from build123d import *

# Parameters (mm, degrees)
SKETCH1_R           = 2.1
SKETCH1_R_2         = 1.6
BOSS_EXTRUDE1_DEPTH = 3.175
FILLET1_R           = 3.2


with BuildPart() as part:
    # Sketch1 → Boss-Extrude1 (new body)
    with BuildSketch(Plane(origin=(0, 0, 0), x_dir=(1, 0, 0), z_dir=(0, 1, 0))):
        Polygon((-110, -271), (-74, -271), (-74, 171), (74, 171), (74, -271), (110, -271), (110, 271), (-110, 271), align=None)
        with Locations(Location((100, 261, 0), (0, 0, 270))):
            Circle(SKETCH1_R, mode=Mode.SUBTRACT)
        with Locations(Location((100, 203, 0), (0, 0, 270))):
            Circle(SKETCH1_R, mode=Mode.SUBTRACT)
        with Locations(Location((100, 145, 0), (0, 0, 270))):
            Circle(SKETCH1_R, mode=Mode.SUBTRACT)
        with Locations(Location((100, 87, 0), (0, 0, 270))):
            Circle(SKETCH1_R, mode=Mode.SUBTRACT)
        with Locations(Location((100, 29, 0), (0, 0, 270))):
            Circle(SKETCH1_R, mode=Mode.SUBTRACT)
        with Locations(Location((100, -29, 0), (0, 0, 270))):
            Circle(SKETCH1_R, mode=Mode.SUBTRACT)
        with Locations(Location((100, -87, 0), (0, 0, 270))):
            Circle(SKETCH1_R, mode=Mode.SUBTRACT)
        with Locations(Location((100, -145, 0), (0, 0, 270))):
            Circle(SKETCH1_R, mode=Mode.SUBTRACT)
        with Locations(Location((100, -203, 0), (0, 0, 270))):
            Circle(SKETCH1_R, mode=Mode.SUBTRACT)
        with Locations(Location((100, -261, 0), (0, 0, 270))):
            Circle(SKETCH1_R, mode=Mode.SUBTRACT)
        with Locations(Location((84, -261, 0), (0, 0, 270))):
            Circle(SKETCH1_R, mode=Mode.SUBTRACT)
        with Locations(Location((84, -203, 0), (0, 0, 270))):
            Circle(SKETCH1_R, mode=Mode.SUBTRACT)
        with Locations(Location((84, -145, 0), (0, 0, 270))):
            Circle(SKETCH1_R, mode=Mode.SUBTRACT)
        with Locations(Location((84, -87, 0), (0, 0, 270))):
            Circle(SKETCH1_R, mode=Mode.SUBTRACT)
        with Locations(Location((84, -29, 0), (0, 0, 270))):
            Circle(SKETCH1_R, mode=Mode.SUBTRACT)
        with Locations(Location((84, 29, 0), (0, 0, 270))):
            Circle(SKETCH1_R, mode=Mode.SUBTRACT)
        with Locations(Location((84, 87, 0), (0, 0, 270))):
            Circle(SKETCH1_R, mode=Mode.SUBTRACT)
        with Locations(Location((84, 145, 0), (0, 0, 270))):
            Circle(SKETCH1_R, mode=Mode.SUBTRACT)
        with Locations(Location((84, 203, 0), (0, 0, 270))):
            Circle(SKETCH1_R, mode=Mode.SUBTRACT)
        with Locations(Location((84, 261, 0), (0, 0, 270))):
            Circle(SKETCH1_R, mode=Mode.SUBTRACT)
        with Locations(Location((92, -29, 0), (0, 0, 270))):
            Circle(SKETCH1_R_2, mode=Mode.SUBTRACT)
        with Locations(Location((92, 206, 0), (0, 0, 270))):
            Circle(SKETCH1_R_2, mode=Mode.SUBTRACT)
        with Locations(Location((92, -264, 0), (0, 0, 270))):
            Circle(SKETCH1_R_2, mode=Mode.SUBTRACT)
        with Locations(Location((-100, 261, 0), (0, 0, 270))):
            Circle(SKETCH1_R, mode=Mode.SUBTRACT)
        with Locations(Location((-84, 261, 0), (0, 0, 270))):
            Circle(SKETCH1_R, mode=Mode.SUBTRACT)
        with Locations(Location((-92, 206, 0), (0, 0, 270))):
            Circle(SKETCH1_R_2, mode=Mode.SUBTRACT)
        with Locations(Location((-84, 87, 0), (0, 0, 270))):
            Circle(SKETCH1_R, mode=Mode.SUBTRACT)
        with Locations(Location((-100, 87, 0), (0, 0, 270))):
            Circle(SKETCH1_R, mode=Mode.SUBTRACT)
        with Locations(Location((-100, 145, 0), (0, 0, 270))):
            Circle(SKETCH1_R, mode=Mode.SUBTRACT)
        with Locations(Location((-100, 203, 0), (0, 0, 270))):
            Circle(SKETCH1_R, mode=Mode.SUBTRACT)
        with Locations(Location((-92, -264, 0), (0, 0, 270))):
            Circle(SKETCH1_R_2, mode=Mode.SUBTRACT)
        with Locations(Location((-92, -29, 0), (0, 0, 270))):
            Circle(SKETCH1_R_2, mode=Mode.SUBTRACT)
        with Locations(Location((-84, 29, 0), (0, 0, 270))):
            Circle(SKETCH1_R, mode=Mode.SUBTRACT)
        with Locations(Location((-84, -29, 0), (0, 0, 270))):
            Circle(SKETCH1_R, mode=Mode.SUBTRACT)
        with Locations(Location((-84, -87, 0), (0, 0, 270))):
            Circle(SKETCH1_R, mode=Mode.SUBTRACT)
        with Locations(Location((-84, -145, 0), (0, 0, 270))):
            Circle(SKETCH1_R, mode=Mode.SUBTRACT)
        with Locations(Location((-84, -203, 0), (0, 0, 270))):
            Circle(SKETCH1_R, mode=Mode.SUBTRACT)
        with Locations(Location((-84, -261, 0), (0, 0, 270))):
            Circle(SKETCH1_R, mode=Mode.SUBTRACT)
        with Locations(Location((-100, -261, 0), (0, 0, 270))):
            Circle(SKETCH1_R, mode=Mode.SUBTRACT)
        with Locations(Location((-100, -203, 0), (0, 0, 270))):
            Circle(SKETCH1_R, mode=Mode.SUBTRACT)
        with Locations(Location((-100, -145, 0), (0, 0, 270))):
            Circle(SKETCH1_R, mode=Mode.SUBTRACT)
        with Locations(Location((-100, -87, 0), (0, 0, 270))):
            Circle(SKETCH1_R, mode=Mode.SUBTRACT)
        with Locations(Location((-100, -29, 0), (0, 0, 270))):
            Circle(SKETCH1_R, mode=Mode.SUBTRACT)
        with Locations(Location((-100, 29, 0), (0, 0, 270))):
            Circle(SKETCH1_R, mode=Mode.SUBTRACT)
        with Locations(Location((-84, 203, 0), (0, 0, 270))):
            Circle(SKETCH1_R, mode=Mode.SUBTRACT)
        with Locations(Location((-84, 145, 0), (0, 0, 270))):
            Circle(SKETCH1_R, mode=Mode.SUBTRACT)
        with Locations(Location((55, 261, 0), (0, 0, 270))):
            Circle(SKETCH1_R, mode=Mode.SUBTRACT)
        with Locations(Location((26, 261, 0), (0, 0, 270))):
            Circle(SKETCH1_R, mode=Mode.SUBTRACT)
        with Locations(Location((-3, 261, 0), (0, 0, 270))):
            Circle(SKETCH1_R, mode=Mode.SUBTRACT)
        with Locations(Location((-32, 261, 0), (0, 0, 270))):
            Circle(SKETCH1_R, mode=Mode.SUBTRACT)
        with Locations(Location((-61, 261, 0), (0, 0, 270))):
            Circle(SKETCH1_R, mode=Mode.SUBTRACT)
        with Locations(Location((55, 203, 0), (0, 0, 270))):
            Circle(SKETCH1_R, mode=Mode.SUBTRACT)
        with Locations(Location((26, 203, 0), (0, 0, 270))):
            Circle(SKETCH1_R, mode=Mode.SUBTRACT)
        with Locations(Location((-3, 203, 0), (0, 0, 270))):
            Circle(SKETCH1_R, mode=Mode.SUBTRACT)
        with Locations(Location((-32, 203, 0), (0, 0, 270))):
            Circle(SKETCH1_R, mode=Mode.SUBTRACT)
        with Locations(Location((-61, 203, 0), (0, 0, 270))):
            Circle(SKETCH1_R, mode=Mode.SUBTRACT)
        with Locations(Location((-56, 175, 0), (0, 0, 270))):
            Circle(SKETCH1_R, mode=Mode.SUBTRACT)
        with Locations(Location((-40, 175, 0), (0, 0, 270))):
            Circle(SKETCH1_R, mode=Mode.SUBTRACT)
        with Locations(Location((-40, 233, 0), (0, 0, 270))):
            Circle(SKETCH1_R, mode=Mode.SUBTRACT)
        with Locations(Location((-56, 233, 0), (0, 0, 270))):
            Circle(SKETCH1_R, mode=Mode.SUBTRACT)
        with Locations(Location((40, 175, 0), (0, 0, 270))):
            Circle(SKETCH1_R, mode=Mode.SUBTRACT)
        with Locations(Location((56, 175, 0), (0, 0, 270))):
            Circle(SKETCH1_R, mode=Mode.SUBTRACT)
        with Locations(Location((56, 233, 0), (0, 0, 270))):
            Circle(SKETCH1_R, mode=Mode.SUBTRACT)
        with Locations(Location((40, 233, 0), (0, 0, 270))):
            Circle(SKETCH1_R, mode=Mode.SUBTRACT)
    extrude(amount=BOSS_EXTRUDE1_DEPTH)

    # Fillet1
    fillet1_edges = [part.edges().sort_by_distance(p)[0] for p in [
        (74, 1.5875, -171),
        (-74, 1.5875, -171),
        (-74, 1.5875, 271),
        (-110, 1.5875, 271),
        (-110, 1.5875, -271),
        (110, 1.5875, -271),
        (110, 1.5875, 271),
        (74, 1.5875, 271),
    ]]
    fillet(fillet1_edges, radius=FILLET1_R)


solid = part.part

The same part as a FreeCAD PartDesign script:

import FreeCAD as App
import Part
import Sketcher
Q = App.Units.Quantity


def edges_at(feature, points):
    """Names of the edges that pass closest to the given points."""
    edges = feature.Shape.Edges
    near = lambda p: min(range(len(edges)), key=lambda i: edges[i].distToShape(Part.Vertex(*p))[0])
    return sorted({f"Edge{near(p) + 1}" for p in points})


def add_polygon(sketch, points):
    """Adds a closed chain of lines whose ends are joined by coincident constraints."""
    first, n = sketch.GeometryCount, len(points)
    for a, b in zip(points, points[1:] + points[:1]):
        sketch.addGeometry(Part.LineSegment(App.Vector(*a, 0), App.Vector(*b, 0)), False)
    for i in range(n):
        sketch.addConstraint(Sketcher.Constraint("Coincident", first + i, 2, first + (i + 1) % n, 1))

doc = App.newDocument("Part")
body = doc.addObject("PartDesign::Body", "Body")

# Sketch on XZ plane
sketch1 = body.newObject("Sketcher::SketchObject", "Sketch")
sketch1.AttachmentSupport = (doc.getObject("XZ_Plane"), [""])
sketch1.MapMode = "FlatFace"
add_polygon(sketch1, [(-110, 271), (-74, 271), (-74, -171), (74, -171), (74, 271), (110, 271), (110, -271), (-110, -271)])  # lines 0-7
sketch1.addGeometry(Part.Circle(App.Vector(-100, 261, 0), App.Vector(0, 0, 1), 2.1), False)  # 8
sketch1.addGeometry(Part.Circle(App.Vector(-92, 264, 0), App.Vector(0, 0, 1), 1.6), False)  # 9
sketch1.addGeometry(Part.Circle(App.Vector(-84, 261, 0), App.Vector(0, 0, 1), 2.1), False)  # 10
sketch1.addGeometry(Part.Circle(App.Vector(-100, 203, 0), App.Vector(0, 0, 1), 2.1), False)  # 11
sketch1.addGeometry(Part.Circle(App.Vector(-84, 203, 0), App.Vector(0, 0, 1), 2.1), False)  # 12
sketch1.addGeometry(Part.Circle(App.Vector(-100, 145, 0), App.Vector(0, 0, 1), 2.1), False)  # 13
sketch1.addGeometry(Part.Circle(App.Vector(-84, 145, 0), App.Vector(0, 0, 1), 2.1), False)  # 14
sketch1.addGeometry(Part.Circle(App.Vector(-100, 87, 0), App.Vector(0, 0, 1), 2.1), False)  # 15
sketch1.addGeometry(Part.Circle(App.Vector(-84, 87, 0), App.Vector(0, 0, 1), 2.1), False)  # 16
sketch1.addGeometry(Part.Circle(App.Vector(-100, 29, 0), App.Vector(0, 0, 1), 2.1), False)  # 17
sketch1.addGeometry(Part.Circle(App.Vector(-92, 29, 0), App.Vector(0, 0, 1), 1.6), False)  # 18
sketch1.addGeometry(Part.Circle(App.Vector(-84, 29, 0), App.Vector(0, 0, 1), 2.1), False)  # 19
sketch1.addGeometry(Part.Circle(App.Vector(84, 261, 0), App.Vector(0, 0, 1), 2.1), False)  # 20
sketch1.addGeometry(Part.Circle(App.Vector(92, 264, 0), App.Vector(0, 0, 1), 1.6), False)  # 21
sketch1.addGeometry(Part.Circle(App.Vector(100, 261, 0), App.Vector(0, 0, 1), 2.1), False)  # 22
sketch1.addGeometry(Part.Circle(App.Vector(84, 203, 0), App.Vector(0, 0, 1), 2.1), False)  # 23
sketch1.addGeometry(Part.Circle(App.Vector(100, 203, 0), App.Vector(0, 0, 1), 2.1), False)  # 24
sketch1.addGeometry(Part.Circle(App.Vector(84, 145, 0), App.Vector(0, 0, 1), 2.1), False)  # 25
sketch1.addGeometry(Part.Circle(App.Vector(100, 145, 0), App.Vector(0, 0, 1), 2.1), False)  # 26
sketch1.addGeometry(Part.Circle(App.Vector(84, 87, 0), App.Vector(0, 0, 1), 2.1), False)  # 27
sketch1.addGeometry(Part.Circle(App.Vector(100, 87, 0), App.Vector(0, 0, 1), 2.1), False)  # 28
sketch1.addGeometry(Part.Circle(App.Vector(84, 29, 0), App.Vector(0, 0, 1), 2.1), False)  # 29
sketch1.addGeometry(Part.Circle(App.Vector(92, 29, 0), App.Vector(0, 0, 1), 1.6), False)  # 30
sketch1.addGeometry(Part.Circle(App.Vector(100, 29, 0), App.Vector(0, 0, 1), 2.1), False)  # 31
sketch1.addGeometry(Part.Circle(App.Vector(-100, -29, 0), App.Vector(0, 0, 1), 2.1), False)  # 32
sketch1.addGeometry(Part.Circle(App.Vector(-84, -29, 0), App.Vector(0, 0, 1), 2.1), False)  # 33
sketch1.addGeometry(Part.Circle(App.Vector(-100, -87, 0), App.Vector(0, 0, 1), 2.1), False)  # 34
sketch1.addGeometry(Part.Circle(App.Vector(-84, -87, 0), App.Vector(0, 0, 1), 2.1), False)  # 35
sketch1.addGeometry(Part.Circle(App.Vector(-100, -145, 0), App.Vector(0, 0, 1), 2.1), False)  # 36
sketch1.addGeometry(Part.Circle(App.Vector(-84, -145, 0), App.Vector(0, 0, 1), 2.1), False)  # 37
sketch1.addGeometry(Part.Circle(App.Vector(-56, -175, 0), App.Vector(0, 0, 1), 2.1), False)  # 38
sketch1.addGeometry(Part.Circle(App.Vector(-100, -203, 0), App.Vector(0, 0, 1), 2.1), False)  # 39
sketch1.addGeometry(Part.Circle(App.Vector(-92, -206, 0), App.Vector(0, 0, 1), 1.6), False)  # 40
sketch1.addGeometry(Part.Circle(App.Vector(-84, -203, 0), App.Vector(0, 0, 1), 2.1), False)  # 41
sketch1.addGeometry(Part.Circle(App.Vector(-100, -261, 0), App.Vector(0, 0, 1), 2.1), False)  # 42
sketch1.addGeometry(Part.Circle(App.Vector(-84, -261, 0), App.Vector(0, 0, 1), 2.1), False)  # 43
sketch1.addGeometry(Part.Circle(App.Vector(-61, -203, 0), App.Vector(0, 0, 1), 2.1), False)  # 44
sketch1.addGeometry(Part.Circle(App.Vector(-56, -233, 0), App.Vector(0, 0, 1), 2.1), False)  # 45
sketch1.addGeometry(Part.Circle(App.Vector(-61, -261, 0), App.Vector(0, 0, 1), 2.1), False)  # 46
sketch1.addGeometry(Part.Circle(App.Vector(-40, -175, 0), App.Vector(0, 0, 1), 2.1), False)  # 47
sketch1.addGeometry(Part.Circle(App.Vector(-32, -203, 0), App.Vector(0, 0, 1), 2.1), False)  # 48
sketch1.addGeometry(Part.Circle(App.Vector(-40, -233, 0), App.Vector(0, 0, 1), 2.1), False)  # 49
sketch1.addGeometry(Part.Circle(App.Vector(-32, -261, 0), App.Vector(0, 0, 1), 2.1), False)  # 50
sketch1.addGeometry(Part.Circle(App.Vector(-3, -203, 0), App.Vector(0, 0, 1), 2.1), False)  # 51
sketch1.addGeometry(Part.Circle(App.Vector(-3, -261, 0), App.Vector(0, 0, 1), 2.1), False)  # 52
sketch1.addGeometry(Part.Circle(App.Vector(84, -29, 0), App.Vector(0, 0, 1), 2.1), False)  # 53
sketch1.addGeometry(Part.Circle(App.Vector(100, -29, 0), App.Vector(0, 0, 1), 2.1), False)  # 54
sketch1.addGeometry(Part.Circle(App.Vector(84, -87, 0), App.Vector(0, 0, 1), 2.1), False)  # 55
sketch1.addGeometry(Part.Circle(App.Vector(100, -87, 0), App.Vector(0, 0, 1), 2.1), False)  # 56
sketch1.addGeometry(Part.Circle(App.Vector(40, -175, 0), App.Vector(0, 0, 1), 2.1), False)  # 57
sketch1.addGeometry(Part.Circle(App.Vector(26, -203, 0), App.Vector(0, 0, 1), 2.1), False)  # 58
sketch1.addGeometry(Part.Circle(App.Vector(26, -261, 0), App.Vector(0, 0, 1), 2.1), False)  # 59
sketch1.addGeometry(Part.Circle(App.Vector(40, -233, 0), App.Vector(0, 0, 1), 2.1), False)  # 60
sketch1.addGeometry(Part.Circle(App.Vector(56, -175, 0), App.Vector(0, 0, 1), 2.1), False)  # 61
sketch1.addGeometry(Part.Circle(App.Vector(84, -145, 0), App.Vector(0, 0, 1), 2.1), False)  # 62
sketch1.addGeometry(Part.Circle(App.Vector(100, -145, 0), App.Vector(0, 0, 1), 2.1), False)  # 63
sketch1.addGeometry(Part.Circle(App.Vector(55, -203, 0), App.Vector(0, 0, 1), 2.1), False)  # 64
sketch1.addGeometry(Part.Circle(App.Vector(56, -233, 0), App.Vector(0, 0, 1), 2.1), False)  # 65
sketch1.addGeometry(Part.Circle(App.Vector(55, -261, 0), App.Vector(0, 0, 1), 2.1), False)  # 66
sketch1.addGeometry(Part.Circle(App.Vector(84, -203, 0), App.Vector(0, 0, 1), 2.1), False)  # 67
sketch1.addGeometry(Part.Circle(App.Vector(92, -206, 0), App.Vector(0, 0, 1), 1.6), False)  # 68
sketch1.addGeometry(Part.Circle(App.Vector(100, -203, 0), App.Vector(0, 0, 1), 2.1), False)  # 69
sketch1.addGeometry(Part.Circle(App.Vector(84, -261, 0), App.Vector(0, 0, 1), 2.1), False)  # 70
sketch1.addGeometry(Part.Circle(App.Vector(100, -261, 0), App.Vector(0, 0, 1), 2.1), False)  # 71
sketch1.addConstraint([
    Sketcher.Constraint("Horizontal", 0),
    Sketcher.Constraint("Vertical", 1),
    Sketcher.Constraint("Horizontal", 2),
    Sketcher.Constraint("Vertical", 3),
    Sketcher.Constraint("Horizontal", 4),
    Sketcher.Constraint("Vertical", 5),
    Sketcher.Constraint("Horizontal", 6),
    Sketcher.Constraint("Vertical", 7),
    Sketcher.Constraint("Equal", 8, 10),
    Sketcher.Constraint("Equal", 10, 11),
    Sketcher.Constraint("Equal", 11, 12),
    Sketcher.Constraint("Equal", 12, 13),
    Sketcher.Constraint("Equal", 13, 14),
    Sketcher.Constraint("Equal", 14, 15),
    Sketcher.Constraint("Equal", 15, 16),
    Sketcher.Constraint("Equal", 16, 17),
    Sketcher.Constraint("Equal", 9, 18),
    Sketcher.Constraint("Equal", 17, 19),
    Sketcher.Constraint("Equal", 19, 20),
    Sketcher.Constraint("Equal", 18, 21),
    Sketcher.Constraint("Equal", 20, 22),
    Sketcher.Constraint("Equal", 22, 23),
    Sketcher.Constraint("Equal", 23, 24),
    Sketcher.Constraint("Equal", 24, 25),
    Sketcher.Constraint("Equal", 25, 26),
    Sketcher.Constraint("Equal", 26, 27),
    Sketcher.Constraint("Equal", 27, 28),
    Sketcher.Constraint("Equal", 28, 29),
    Sketcher.Constraint("Equal", 21, 30),
    Sketcher.Constraint("Equal", 29, 31),
    Sketcher.Constraint("Equal", 31, 32),
    Sketcher.Constraint("Equal", 32, 33),
    Sketcher.Constraint("Equal", 33, 34),
    Sketcher.Constraint("Equal", 34, 35),
    Sketcher.Constraint("Equal", 35, 36),
    Sketcher.Constraint("Equal", 36, 37),
    Sketcher.Constraint("Equal", 37, 38),
    Sketcher.Constraint("Equal", 38, 39),
    Sketcher.Constraint("Equal", 30, 40),
    Sketcher.Constraint("Equal", 39, 41),
    Sketcher.Constraint("Equal", 41, 42),
    Sketcher.Constraint("Equal", 42, 43),
    Sketcher.Constraint("Equal", 43, 44),
    Sketcher.Constraint("Equal", 44, 45),
    Sketcher.Constraint("Equal", 45, 46),
    Sketcher.Constraint("Equal", 46, 47),
    Sketcher.Constraint("Equal", 47, 48),
    Sketcher.Constraint("Equal", 48, 49),
    Sketcher.Constraint("Equal", 49, 50),
    Sketcher.Constraint("Equal", 50, 51),
    Sketcher.Constraint("Equal", 51, 52),
    Sketcher.Constraint("Equal", 52, 53),
    Sketcher.Constraint("Equal", 53, 54),
    Sketcher.Constraint("Equal", 54, 55),
    Sketcher.Constraint("Equal", 55, 56),
    Sketcher.Constraint("Equal", 56, 57),
    Sketcher.Constraint("Equal", 57, 58),
    Sketcher.Constraint("Equal", 58, 59),
    Sketcher.Constraint("Equal", 59, 60),
    Sketcher.Constraint("Equal", 60, 61),
    Sketcher.Constraint("Equal", 61, 62),
    Sketcher.Constraint("Equal", 62, 63),
    Sketcher.Constraint("Equal", 63, 64),
    Sketcher.Constraint("Equal", 64, 65),
    Sketcher.Constraint("Equal", 65, 66),
    Sketcher.Constraint("Equal", 66, 67),
    Sketcher.Constraint("Equal", 40, 68),
    Sketcher.Constraint("Equal", 67, 69),
    Sketcher.Constraint("Equal", 69, 70),
    Sketcher.Constraint("Equal", 70, 71),
    Sketcher.Constraint("Symmetric", 31, 3, 32, 3, -1, 1),
    Sketcher.Constraint("Symmetric", 29, 3, 33, 3, -1, 1),
    Sketcher.Constraint("Symmetric", 28, 3, 34, 3, -1, 1),
    Sketcher.Constraint("Symmetric", 27, 3, 35, 3, -1, 1),
    Sketcher.Constraint("Symmetric", 26, 3, 36, 3, -1, 1),
    Sketcher.Constraint("Symmetric", 25, 3, 37, 3, -1, 1),
    Sketcher.Constraint("Symmetric", 24, 3, 39, 3, -1, 1),
    Sketcher.Constraint("Symmetric", 23, 3, 41, 3, -1, 1),
    Sketcher.Constraint("Symmetric", 22, 3, 42, 3, -1, 1),
    Sketcher.Constraint("Symmetric", 20, 3, 43, 3, -1, 1),
    Sketcher.Constraint("Symmetric", 19, 3, 53, 3, -1, 1),
    Sketcher.Constraint("Symmetric", 17, 3, 54, 3, -1, 1),
    Sketcher.Constraint("Symmetric", 16, 3, 55, 3, -1, 1),
    Sketcher.Constraint("Symmetric", 15, 3, 56, 3, -1, 1),
    Sketcher.Constraint("Symmetric", 14, 3, 62, 3, -1, 1),
    Sketcher.Constraint("Symmetric", 13, 3, 63, 3, -1, 1),
    Sketcher.Constraint("Symmetric", 12, 3, 67, 3, -1, 1),
    Sketcher.Constraint("Symmetric", 11, 3, 69, 3, -1, 1),
    Sketcher.Constraint("Symmetric", 10, 3, 70, 3, -1, 1),
    Sketcher.Constraint("Symmetric", 8, 3, 71, 3, -1, 1),
    Sketcher.Constraint("Symmetric", 4, 2, 6, 2, -1, 1),
    Sketcher.Constraint("Symmetric", 10, 3, 20, 3, -2),
    Sketcher.Constraint("Symmetric", 9, 3, 21, 3, -2),
    Sketcher.Constraint("Symmetric", 8, 3, 22, 3, -2),
    Sketcher.Constraint("Symmetric", 12, 3, 23, 3, -2),
    Sketcher.Constraint("Symmetric", 11, 3, 24, 3, -2),
    Sketcher.Constraint("Symmetric", 14, 3, 25, 3, -2),
    Sketcher.Constraint("Symmetric", 13, 3, 26, 3, -2),
    Sketcher.Constraint("Symmetric", 16, 3, 27, 3, -2),
    Sketcher.Constraint("Symmetric", 15, 3, 28, 3, -2),
    Sketcher.Constraint("Symmetric", 19, 3, 29, 3, -2),
    Sketcher.Constraint("Symmetric", 18, 3, 30, 3, -2),
    Sketcher.Constraint("Symmetric", 17, 3, 31, 3, -2),
    Sketcher.Constraint("Symmetric", 47, 3, 57, 3, -2),
    Sketcher.Constraint("Symmetric", 49, 3, 60, 3, -2),
    Sketcher.Constraint("Symmetric", 38, 3, 61, 3, -2),
    Sketcher.Constraint("Symmetric", 45, 3, 65, 3, -2),
    Sketcher.Constraint("Symmetric", 40, 3, 68, 3, -2),
    Sketcher.Constraint("Symmetric", 0, 2, 3, 2, -2),
    Sketcher.Constraint("Horizontal", 8, 3, 10, 3),
    Sketcher.Constraint("Horizontal", 11, 3, 12, 3),
    Sketcher.Constraint("Horizontal", 13, 3, 14, 3),
    Sketcher.Constraint("Horizontal", 15, 3, 16, 3),
    Sketcher.Constraint("Horizontal", 17, 3, 18, 3),
    Sketcher.Constraint("Horizontal", 18, 3, 19, 3),
    Sketcher.Constraint("Horizontal", 41, 3, 44, 3),
    Sketcher.Constraint("Horizontal", 43, 3, 46, 3),
    Sketcher.Constraint("Horizontal", 38, 3, 47, 3),
    Sketcher.Constraint("Horizontal", 44, 3, 48, 3),
    Sketcher.Constraint("Horizontal", 45, 3, 49, 3),
    Sketcher.Constraint("Horizontal", 46, 3, 50, 3),
    Sketcher.Constraint("Horizontal", 48, 3, 51, 3),
    Sketcher.Constraint("Horizontal", 50, 3, 52, 3),
    Sketcher.Constraint("Horizontal", 51, 3, 58, 3),
    Sketcher.Constraint("Horizontal", 52, 3, 59, 3),
    Sketcher.Constraint("Horizontal", 58, 3, 64, 3),
    Sketcher.Constraint("Horizontal", 59, 3, 66, 3),
    Sketcher.Constraint("Vertical", 8, 3, 11, 3),
    Sketcher.Constraint("Vertical", 10, 3, 12, 3),
    Sketcher.Constraint("Vertical", 11, 3, 13, 3),
    Sketcher.Constraint("Vertical", 12, 3, 14, 3),
    Sketcher.Constraint("Vertical", 13, 3, 15, 3),
    Sketcher.Constraint("Vertical", 14, 3, 16, 3),
    Sketcher.Constraint("Vertical", 15, 3, 17, 3),
    Sketcher.Constraint("Vertical", 9, 3, 18, 3),
    Sketcher.Constraint("Vertical", 16, 3, 19, 3),
    Sketcher.Constraint("Vertical", 18, 3, 40, 3),
    Sketcher.Constraint("Vertical", 38, 3, 45, 3),
    Sketcher.Constraint("Vertical", 44, 3, 46, 3),
    Sketcher.Constraint("Vertical", 47, 3, 49, 3),
    Sketcher.Constraint("Vertical", 48, 3, 50, 3),
    Sketcher.Constraint("Vertical", 51, 3, 52, 3),
    Sketcher.Constraint("Vertical", 58, 3, 59, 3),
    Sketcher.Constraint("Vertical", 64, 3, 66, 3),
    Sketcher.Constraint("Diameter", 8, Q("4.2 mm")),
    Sketcher.Constraint("Diameter", 9, Q("3.2 mm")),
    Sketcher.Constraint("DistanceX", 0, 1, 0, 2, Q("36 mm")),
    Sketcher.Constraint("DistanceX", 2, 1, 2, 2, Q("148 mm")),
    Sketcher.Constraint("DistanceY", 1, 2, 1, 1, Q("442 mm")),
    Sketcher.Constraint("DistanceY", 5, 2, 5, 1, Q("542 mm")),
    Sketcher.Constraint("DistanceX", 8, 3, -1, 1, Q("100 mm")),
    Sketcher.Constraint("DistanceY", -1, 1, 8, 3, Q("261 mm")),
    Sketcher.Constraint("DistanceX", 9, 3, -1, 1, Q("92 mm")),
    Sketcher.Constraint("DistanceY", -1, 1, 9, 3, Q("264 mm")),
    Sketcher.Constraint("DistanceX", 10, 3, -1, 1, Q("84 mm")),
    Sketcher.Constraint("DistanceY", -1, 1, 11, 3, Q("203 mm")),
    Sketcher.Constraint("DistanceY", -1, 1, 13, 3, Q("145 mm")),
    Sketcher.Constraint("DistanceY", -1, 1, 15, 3, Q("87 mm")),
    Sketcher.Constraint("DistanceY", -1, 1, 17, 3, Q("29 mm")),
    Sketcher.Constraint("DistanceX", 38, 3, -1, 1, Q("56 mm")),
    Sketcher.Constraint("DistanceY", 38, 3, -1, 1, Q("175 mm")),
    Sketcher.Constraint("DistanceY", 40, 3, -1, 1, Q("206 mm")),
    Sketcher.Constraint("DistanceX", 44, 3, -1, 1, Q("61 mm")),
    Sketcher.Constraint("DistanceY", 45, 3, -1, 1, Q("233 mm")),
    Sketcher.Constraint("DistanceX", 47, 3, -1, 1, Q("40 mm")),
    Sketcher.Constraint("DistanceX", 48, 3, -1, 1, Q("32 mm")),
    Sketcher.Constraint("DistanceX", 51, 3, -1, 1, Q("3 mm")),
    Sketcher.Constraint("DistanceX", -1, 1, 58, 3, Q("26 mm")),
    Sketcher.Constraint("DistanceX", -1, 1, 64, 3, Q("55 mm")),
])
pad1 = body.newObject("PartDesign::Pad", "Pad")
pad1.Profile = sketch1
pad1.Length = 3.175
pad1.Reversed = True
doc.recompute()

fillet = body.newObject("PartDesign::Fillet", "Fillet")
fillet.Base = (pad1, edges_at(pad1, [
    (74, 1.587, -171),
    (-74, 1.587, -171),
    (-74, 1.587, 271),
    (-110, 1.587, 271),
    (-110, 1.587, -271),
    (110, 1.587, -271),
    (110, 1.587, 271),
    (74, 1.587, 271),
]))
fillet.Radius = 3.2

doc.recompute()
